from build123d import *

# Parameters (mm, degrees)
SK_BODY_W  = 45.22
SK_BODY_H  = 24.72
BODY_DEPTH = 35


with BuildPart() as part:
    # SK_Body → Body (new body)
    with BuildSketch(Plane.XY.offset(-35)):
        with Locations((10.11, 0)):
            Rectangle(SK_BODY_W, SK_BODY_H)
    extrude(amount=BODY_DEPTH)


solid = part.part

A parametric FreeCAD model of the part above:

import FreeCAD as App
import Part
import Sketcher

V = App.Vector
Q = App.Units.Quantity


def add_polygon(sketch, points):
    """Adds a closed chain of lines whose ends are joined by coincident constraints."""
    first, n = sketch.GeometryCount, len(points)
    for a, b in zip(points, points[1:] + points[:1]):
        sketch.addGeometry(Part.LineSegment(App.Vector(*a, 0), App.Vector(*b, 0)), False)
    for i in range(n):
        sketch.addConstraint(Sketcher.Constraint("Coincident", first + i, 2, first + (i + 1) % n, 1))

doc = App.newDocument("Part")
body = doc.addObject("PartDesign::Body", "Body")

# Sketch on XY plane
sketch1 = body.newObject("Sketcher::SketchObject", "Sketch")
sketch1.AttachmentSupport = (doc.getObject("XY_Plane"), [""])
sketch1.MapMode = "FlatFace"
sketch1.AttachmentOffset = App.Placement(V(0, 0, -35), App.Rotation())
add_polygon(sketch1, [(-12, 12), (-12, -12), (33, -12), (33, 12)])  # lines 0-3
sketch1.addConstraint([
    Sketcher.Constraint("Vertical", 0),
    Sketcher.Constraint("Horizontal", 1),
    Sketcher.Constraint("Vertical", 2),
    Sketcher.Constraint("Horizontal", 3),
    Sketcher.Constraint("DistanceX", 1, 1, 1, 2, Q("45.22 mm")),
    Sketcher.Constraint("DistanceY", 0, 2, 0, 1, Q("24.72 mm")),
    Sketcher.Constraint("DistanceX", 0, 2, -1, 1, Q("12.5 mm")),
    Sketcher.Constraint("DistanceY", 0, 2, -1, 1, Q("12.36 mm")),
])
pad1 = body.newObject("PartDesign::Pad", "Pad")
pad1.Profile = sketch1
pad1.Length = 35

doc.recompute()
